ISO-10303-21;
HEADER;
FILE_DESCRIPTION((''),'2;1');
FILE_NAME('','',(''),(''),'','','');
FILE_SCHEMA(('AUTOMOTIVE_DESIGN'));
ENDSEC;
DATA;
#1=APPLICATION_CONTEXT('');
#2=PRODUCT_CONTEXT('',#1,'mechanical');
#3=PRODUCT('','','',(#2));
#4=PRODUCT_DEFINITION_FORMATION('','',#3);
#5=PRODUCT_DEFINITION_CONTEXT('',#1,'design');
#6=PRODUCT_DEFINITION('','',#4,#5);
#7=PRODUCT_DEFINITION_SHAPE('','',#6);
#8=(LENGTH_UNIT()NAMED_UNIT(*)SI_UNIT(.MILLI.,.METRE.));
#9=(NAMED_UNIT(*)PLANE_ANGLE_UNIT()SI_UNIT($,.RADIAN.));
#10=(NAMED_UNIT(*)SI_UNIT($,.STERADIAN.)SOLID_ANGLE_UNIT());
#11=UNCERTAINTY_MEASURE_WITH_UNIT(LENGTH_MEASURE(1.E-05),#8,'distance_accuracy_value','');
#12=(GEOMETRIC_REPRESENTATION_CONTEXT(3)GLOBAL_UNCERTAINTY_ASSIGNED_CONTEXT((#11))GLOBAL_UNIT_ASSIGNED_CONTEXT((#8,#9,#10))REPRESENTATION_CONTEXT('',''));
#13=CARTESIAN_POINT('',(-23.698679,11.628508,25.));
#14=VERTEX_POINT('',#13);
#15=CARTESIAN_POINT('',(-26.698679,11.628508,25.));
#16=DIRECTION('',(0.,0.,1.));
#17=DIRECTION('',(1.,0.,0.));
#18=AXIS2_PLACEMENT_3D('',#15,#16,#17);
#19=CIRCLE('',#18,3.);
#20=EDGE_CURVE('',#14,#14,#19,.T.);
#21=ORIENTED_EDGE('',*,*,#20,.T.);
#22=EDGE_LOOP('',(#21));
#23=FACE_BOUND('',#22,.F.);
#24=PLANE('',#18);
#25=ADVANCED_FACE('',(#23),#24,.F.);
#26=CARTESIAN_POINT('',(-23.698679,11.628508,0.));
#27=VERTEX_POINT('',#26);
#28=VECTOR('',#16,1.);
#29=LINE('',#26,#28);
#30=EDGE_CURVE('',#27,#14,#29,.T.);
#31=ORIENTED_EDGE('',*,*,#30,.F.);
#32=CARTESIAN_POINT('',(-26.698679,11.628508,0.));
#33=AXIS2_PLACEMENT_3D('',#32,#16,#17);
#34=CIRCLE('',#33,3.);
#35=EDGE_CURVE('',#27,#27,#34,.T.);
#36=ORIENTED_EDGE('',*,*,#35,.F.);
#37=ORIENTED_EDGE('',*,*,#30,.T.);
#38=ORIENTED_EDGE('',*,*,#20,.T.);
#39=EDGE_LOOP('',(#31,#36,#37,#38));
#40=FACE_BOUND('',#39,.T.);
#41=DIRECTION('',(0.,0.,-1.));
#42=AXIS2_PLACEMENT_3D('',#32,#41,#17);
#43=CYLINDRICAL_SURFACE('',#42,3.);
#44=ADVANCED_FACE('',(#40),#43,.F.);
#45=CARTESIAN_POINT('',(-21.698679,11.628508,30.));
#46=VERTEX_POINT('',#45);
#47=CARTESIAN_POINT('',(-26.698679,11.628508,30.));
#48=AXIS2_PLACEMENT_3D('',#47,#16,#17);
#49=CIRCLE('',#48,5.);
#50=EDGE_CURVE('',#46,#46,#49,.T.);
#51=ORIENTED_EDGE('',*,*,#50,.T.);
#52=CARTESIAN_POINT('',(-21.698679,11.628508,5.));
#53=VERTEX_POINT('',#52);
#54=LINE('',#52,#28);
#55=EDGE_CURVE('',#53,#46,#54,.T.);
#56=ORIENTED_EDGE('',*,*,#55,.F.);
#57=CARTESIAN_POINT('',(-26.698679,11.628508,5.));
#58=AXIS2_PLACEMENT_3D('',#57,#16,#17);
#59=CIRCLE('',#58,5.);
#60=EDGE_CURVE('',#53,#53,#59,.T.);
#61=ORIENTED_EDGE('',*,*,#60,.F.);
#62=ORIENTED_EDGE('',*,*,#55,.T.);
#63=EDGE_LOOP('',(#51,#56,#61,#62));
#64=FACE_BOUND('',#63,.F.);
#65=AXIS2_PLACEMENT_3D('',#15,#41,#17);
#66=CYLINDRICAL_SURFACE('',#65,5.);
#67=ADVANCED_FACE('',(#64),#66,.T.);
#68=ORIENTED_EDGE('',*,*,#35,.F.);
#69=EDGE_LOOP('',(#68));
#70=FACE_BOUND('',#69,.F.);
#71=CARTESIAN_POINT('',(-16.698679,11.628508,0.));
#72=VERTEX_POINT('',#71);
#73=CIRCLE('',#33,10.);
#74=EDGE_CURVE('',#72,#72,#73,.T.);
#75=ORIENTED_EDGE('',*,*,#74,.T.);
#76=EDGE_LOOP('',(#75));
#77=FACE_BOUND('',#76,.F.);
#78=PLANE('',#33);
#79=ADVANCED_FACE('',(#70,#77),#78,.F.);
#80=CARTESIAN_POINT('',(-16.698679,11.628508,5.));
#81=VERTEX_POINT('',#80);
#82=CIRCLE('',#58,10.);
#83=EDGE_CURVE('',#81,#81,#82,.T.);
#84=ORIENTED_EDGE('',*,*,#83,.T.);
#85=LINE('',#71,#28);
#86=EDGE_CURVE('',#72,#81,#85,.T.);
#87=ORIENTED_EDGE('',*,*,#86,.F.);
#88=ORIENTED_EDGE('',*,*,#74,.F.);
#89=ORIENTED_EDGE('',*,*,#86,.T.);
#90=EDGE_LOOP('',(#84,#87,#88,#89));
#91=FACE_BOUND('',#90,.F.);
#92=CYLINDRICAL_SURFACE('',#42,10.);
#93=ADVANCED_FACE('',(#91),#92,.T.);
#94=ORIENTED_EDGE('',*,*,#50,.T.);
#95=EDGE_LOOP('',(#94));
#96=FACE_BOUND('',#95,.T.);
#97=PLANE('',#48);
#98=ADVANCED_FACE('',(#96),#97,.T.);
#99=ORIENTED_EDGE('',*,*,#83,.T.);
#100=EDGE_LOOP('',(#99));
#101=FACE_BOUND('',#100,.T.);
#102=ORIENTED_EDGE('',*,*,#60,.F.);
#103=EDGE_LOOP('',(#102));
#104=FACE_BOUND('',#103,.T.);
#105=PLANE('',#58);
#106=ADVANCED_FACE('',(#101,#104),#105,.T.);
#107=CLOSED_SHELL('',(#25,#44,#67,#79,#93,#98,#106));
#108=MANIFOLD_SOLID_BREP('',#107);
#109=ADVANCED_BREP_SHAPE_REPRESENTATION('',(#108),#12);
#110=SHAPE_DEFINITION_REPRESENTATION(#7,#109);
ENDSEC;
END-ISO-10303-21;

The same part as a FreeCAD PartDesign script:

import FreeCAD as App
import Part
import Sketcher
Q = App.Units.Quantity

doc = App.newDocument("Part")
body = doc.addObject("PartDesign::Body", "Body")

sketch1 = doc.addObject("Sketcher::SketchObject", "Sketch")
body.addObject(sketch1)
sketch1.AttachmentSupport = (doc.XY_Plane, [""])
sketch1.MapMode = "FlatFace"
sketch1.addGeometry([
    Part.Circle(App.Vector(-26.698679, 11.628508, 0), App.Vector(0, 0, 1), 10),
    Part.Circle(App.Vector(-26.698679, 11.628508, 0), App.Vector(0, 0, 1), 5),
], False)
sketch1.addConstraint([
    Sketcher.Constraint("Coincident", 1, 3, 0, 3),
    Sketcher.Constraint("Diameter", 0, Q("20 mm")),
    Sketcher.Constraint("Diameter", 1, Q("10 mm")),
    Sketcher.Constraint("DistanceX", 0, 3, -1, 1, Q("26.698679 mm")),
    Sketcher.Constraint("DistanceY", -1, 1, 0, 3, Q("11.628508 mm")),
])
pad1 = doc.addObject("PartDesign::Pad", "Pad")
body.addObject(pad1)
pad1.Profile = sketch1
pad1.Length = 5

sketch2 = doc.addObject("Sketcher::SketchObject", "Sketch001")
body.addObject(sketch2)
sketch2.AttachmentSupport = (doc.XY_Plane, [""])
sketch2.MapMode = "FlatFace"
sketch2.addGeometry([
    Part.Circle(App.Vector(-26.698679, 11.628508, 0), App.Vector(0, 0, 1), 5),
    Part.Circle(App.Vector(-26.698679, 11.628508, 0), App.Vector(0, 0, 1), 3),
], False)
sketch2.addConstraint([
    Sketcher.Constraint("Coincident", 1, 3, 0, 3),
    Sketcher.Constraint("Diameter", 0, Q("10 mm")),
    Sketcher.Constraint("Diameter", 1, Q("6 mm")),
    Sketcher.Constraint("DistanceX", 0, 3, -1, 1, Q("26.698679 mm")),
    Sketcher.Constraint("DistanceY", -1, 1, 0, 3, Q("11.628508 mm")),
])
pad2 = doc.addObject("PartDesign::Pad", "Pad001")
body.addObject(pad2)
pad2.Profile = sketch2
pad2.Length = 25

sketch3 = doc.addObject("Sketcher::SketchObject", "Sketch002")
body.addObject(sketch3)
sketch3.AttachmentSupport = (doc.XY_Plane, [""])
sketch3.MapMode = "FlatFace"
sketch3.AttachmentOffset = App.Placement(App.Vector(0, 0, 25), App.Rotation())
sketch3.addGeometry(Part.Circle(App.Vector(-26.698679, 11.628508, 0), App.Vector(0, 0, 1), 5), False)
sketch3.addConstraint([
    Sketcher.Constraint("Diameter", 0, Q("10 mm")),
    Sketcher.Constraint("DistanceX", 0, 3, -1, 1, Q("26.698679 mm")),
    Sketcher.Constraint("DistanceY", -1, 1, 0, 3, Q("11.628508 mm")),
])
pad3 = doc.addObject("PartDesign::Pad", "Pad002")
body.addObject(pad3)
pad3.Profile = sketch3
pad3.Length = 5

doc.recompute()
